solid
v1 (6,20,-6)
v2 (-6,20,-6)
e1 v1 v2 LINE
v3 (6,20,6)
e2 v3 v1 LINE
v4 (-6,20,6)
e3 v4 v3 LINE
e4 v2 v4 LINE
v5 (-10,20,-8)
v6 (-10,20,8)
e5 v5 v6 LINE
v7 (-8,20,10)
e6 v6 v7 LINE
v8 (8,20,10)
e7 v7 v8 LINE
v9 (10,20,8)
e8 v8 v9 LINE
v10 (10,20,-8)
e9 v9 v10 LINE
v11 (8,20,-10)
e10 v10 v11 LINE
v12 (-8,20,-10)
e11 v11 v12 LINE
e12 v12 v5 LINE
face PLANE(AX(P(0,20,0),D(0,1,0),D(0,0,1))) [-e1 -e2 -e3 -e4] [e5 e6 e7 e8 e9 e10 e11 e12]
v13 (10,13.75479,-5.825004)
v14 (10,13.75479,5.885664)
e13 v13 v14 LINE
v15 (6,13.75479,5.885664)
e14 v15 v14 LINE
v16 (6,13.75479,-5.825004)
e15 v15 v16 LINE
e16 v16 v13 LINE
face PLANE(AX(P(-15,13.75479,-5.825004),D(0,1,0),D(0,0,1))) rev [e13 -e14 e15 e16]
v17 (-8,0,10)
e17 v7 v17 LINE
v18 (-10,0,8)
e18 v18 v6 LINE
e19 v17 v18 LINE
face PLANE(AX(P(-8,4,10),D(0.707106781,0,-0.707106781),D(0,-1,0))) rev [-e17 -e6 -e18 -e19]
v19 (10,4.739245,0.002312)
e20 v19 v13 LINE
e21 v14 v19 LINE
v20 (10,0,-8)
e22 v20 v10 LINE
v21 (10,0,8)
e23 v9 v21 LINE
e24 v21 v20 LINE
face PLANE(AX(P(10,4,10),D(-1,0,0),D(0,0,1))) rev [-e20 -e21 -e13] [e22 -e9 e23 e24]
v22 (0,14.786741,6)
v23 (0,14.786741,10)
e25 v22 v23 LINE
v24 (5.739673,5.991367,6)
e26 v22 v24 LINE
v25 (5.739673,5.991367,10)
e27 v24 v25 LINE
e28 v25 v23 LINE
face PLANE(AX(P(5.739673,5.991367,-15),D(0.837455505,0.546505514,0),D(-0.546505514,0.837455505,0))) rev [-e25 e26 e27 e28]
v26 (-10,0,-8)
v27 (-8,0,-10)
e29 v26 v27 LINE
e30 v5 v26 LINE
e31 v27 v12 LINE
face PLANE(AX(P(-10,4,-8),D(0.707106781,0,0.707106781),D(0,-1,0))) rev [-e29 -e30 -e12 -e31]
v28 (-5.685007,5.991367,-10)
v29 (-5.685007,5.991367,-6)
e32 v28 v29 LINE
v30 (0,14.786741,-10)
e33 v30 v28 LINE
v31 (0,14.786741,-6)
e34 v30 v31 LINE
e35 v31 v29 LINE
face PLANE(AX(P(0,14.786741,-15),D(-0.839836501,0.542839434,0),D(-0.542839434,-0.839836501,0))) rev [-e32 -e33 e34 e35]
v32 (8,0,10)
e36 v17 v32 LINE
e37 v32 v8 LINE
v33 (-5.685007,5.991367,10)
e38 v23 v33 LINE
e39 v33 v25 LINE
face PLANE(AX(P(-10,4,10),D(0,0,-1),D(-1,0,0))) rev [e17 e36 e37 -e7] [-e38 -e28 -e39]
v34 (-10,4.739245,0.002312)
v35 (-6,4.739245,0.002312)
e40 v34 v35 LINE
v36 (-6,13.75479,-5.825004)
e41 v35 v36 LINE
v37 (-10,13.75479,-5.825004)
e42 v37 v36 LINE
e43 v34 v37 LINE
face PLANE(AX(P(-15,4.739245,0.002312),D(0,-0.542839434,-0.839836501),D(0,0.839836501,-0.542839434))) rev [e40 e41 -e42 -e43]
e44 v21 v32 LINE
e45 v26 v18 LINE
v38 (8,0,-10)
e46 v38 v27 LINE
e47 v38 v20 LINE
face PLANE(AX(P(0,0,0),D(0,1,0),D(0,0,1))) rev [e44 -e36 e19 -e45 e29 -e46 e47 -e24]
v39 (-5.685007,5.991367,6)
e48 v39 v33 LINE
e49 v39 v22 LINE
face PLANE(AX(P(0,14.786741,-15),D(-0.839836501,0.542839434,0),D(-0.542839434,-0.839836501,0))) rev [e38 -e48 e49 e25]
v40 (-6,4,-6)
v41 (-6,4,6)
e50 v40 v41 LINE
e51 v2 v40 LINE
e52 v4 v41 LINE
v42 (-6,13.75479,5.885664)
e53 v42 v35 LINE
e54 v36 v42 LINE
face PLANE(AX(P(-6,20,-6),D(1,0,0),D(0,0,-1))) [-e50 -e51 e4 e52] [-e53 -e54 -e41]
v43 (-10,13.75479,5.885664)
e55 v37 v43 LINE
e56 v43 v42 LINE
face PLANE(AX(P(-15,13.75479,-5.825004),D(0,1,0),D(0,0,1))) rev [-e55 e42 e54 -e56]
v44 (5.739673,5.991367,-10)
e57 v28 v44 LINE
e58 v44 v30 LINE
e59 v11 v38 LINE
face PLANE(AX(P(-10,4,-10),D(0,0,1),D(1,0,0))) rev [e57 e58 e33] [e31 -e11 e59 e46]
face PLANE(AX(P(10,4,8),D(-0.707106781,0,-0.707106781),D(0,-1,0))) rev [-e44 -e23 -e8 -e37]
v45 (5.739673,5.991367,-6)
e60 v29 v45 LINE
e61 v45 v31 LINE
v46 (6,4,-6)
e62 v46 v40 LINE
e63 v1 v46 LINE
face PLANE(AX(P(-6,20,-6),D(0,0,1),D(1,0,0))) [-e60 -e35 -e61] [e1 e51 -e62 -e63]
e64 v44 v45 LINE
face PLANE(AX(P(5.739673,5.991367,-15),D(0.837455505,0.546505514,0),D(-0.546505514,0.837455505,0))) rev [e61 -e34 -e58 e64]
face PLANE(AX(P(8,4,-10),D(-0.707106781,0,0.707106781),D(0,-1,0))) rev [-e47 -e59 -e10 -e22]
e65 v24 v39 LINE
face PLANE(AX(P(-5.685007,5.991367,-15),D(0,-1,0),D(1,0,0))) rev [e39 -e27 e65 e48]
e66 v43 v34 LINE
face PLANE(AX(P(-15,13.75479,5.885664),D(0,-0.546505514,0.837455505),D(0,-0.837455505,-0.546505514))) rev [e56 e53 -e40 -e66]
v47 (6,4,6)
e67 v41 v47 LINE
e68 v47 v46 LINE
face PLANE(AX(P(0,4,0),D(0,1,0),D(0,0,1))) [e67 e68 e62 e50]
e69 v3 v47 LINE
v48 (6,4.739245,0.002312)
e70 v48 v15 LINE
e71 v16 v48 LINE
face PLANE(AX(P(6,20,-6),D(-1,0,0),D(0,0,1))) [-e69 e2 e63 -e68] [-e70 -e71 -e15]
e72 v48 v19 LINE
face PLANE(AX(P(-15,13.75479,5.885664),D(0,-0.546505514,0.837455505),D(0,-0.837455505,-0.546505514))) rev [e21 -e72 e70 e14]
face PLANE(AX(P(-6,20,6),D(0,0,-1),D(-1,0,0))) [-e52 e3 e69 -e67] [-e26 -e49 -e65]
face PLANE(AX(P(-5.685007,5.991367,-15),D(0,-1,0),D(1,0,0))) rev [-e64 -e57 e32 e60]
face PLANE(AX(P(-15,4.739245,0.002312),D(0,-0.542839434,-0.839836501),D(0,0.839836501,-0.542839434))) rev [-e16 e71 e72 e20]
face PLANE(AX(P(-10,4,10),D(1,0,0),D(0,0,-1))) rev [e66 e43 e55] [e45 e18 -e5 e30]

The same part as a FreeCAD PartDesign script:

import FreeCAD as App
import Part
import Sketcher
Q = App.Units.Quantity


def edges_at(feature, points):
    """Names of the edges that pass closest to the given points."""
    edges = feature.Shape.Edges
    near = lambda p: min(range(len(edges)), key=lambda i: edges[i].distToShape(Part.Vertex(*p))[0])
    return sorted({f"Edge{near(p) + 1}" for p in points})

doc = App.newDocument("Part")
body = doc.addObject("PartDesign::Body", "Body")

sketch1 = body.newObject("Sketcher::SketchObject", "Sketch")
sketch1.AttachmentSupport = (doc.getObject("XZ_Plane"), [""])
sketch1.MapMode = "FlatFace"
sketch1.addGeometry([
    Part.LineSegment(App.Vector(-10, -10, 0), App.Vector(-10, 10, 0)),
    Part.LineSegment(App.Vector(-10, 10, 0), App.Vector(10, 10, 0)),
    Part.LineSegment(App.Vector(10, 10, 0), App.Vector(10, -10, 0)),
    Part.LineSegment(App.Vector(10, -10, 0), App.Vector(-10, -10, 0)),
], False)
sketch1.addConstraint([
    Sketcher.Constraint("Coincident", 0, 2, 1, 1),
    Sketcher.Constraint("Coincident", 1, 2, 2, 1),
    Sketcher.Constraint("Coincident", 2, 2, 3, 1),
    Sketcher.Constraint("Coincident", 3, 2, 0, 1),
    Sketcher.Constraint("Vertical", 0),
    Sketcher.Constraint("Horizontal", 1),
    Sketcher.Constraint("Vertical", 2),
    Sketcher.Constraint("Horizontal", 3),
    Sketcher.Constraint("Symmetric", 0, 2, 2, 2, -1, 1),
    Sketcher.Constraint("Equal", 3, 0),
    Sketcher.Constraint("DistanceX", 1, 1, 1, 2, Q("20 mm")),
])
pad1 = body.newObject("PartDesign::Pad", "Pad")
pad1.Profile = sketch1
pad1.Length = 4
pad1.Reversed = True

sketch2 = body.newObject("Sketcher::SketchObject", "Sketch001")
sketch2.AttachmentSupport = (doc.getObject("XZ_Plane"), [""])
sketch2.MapMode = "FlatFace"
sketch2.AttachmentOffset = App.Placement(App.Vector(0, 0, -4), App.Rotation())
sketch2.addGeometry([
    Part.LineSegment(App.Vector(-10, -10, 0), App.Vector(-10, 10, 0)),
    Part.LineSegment(App.Vector(-10, 10, 0), App.Vector(10, 10, 0)),
    Part.LineSegment(App.Vector(10, 10, 0), App.Vector(10, -10, 0)),
    Part.LineSegment(App.Vector(10, -10, 0), App.Vector(-10, -10, 0)),
    Part.LineSegment(App.Vector(6, 6, 0), App.Vector(-6, 6, 0)),
    Part.LineSegment(App.Vector(-6, 6, 0), App.Vector(-6, -6, 0)),
    Part.LineSegment(App.Vector(-6, -6, 0), App.Vector(6, -6, 0)),
    Part.LineSegment(App.Vector(6, -6, 0), App.Vector(6, 6, 0)),
], False)
sketch2.addConstraint([
    Sketcher.Constraint("Coincident", 0, 2, 1, 1),
    Sketcher.Constraint("Coincident", 1, 2, 2, 1),
    Sketcher.Constraint("Coincident", 2, 2, 3, 1),
    Sketcher.Constraint("Coincident", 3, 2, 0, 1),
    Sketcher.Constraint("Coincident", 4, 2, 5, 1),
    Sketcher.Constraint("Coincident", 5, 2, 6, 1),
    Sketcher.Constraint("Coincident", 6, 2, 7, 1),
    Sketcher.Constraint("Coincident", 7, 2, 4, 1),
    Sketcher.Constraint("Vertical", 0),
    Sketcher.Constraint("Horizontal", 1),
    Sketcher.Constraint("Vertical", 2),
    Sketcher.Constraint("Horizontal", 3),
    Sketcher.Constraint("Horizontal", 4),
    Sketcher.Constraint("Vertical", 5),
    Sketcher.Constraint("Horizontal", 6),
    Sketcher.Constraint("Vertical", 7),
    Sketcher.Constraint("Symmetric", 0, 2, 2, 2, -1, 1),
    Sketcher.Constraint("Symmetric", 4, 2, 6, 2, -1, 1),
    Sketcher.Constraint("Equal", 3, 0),
    Sketcher.Constraint("Equal", 6, 5),
    Sketcher.Constraint("DistanceX", 1, 1, 1, 2, Q("20 mm")),
    Sketcher.Constraint("DistanceX", 4, 2, 4, 1, Q("12 mm")),
])
pad2 = body.newObject("PartDesign::Pad", "Pad001")
pad2.Profile = sketch2
pad2.Length = 16
pad2.Reversed = True

sketch3 = body.newObject("Sketcher::SketchObject", "Sketch002")
sketch3.AttachmentSupport = (doc.getObject("XY_Plane"), [""])
sketch3.MapMode = "FlatFace"
sketch3.AttachmentOffset = App.Placement(App.Vector(0, 0, 10), App.Rotation())
sketch3.addGeometry([
    Part.LineSegment(App.Vector(0, 14.786741, 0), App.Vector(-5.685007, 5.991367, 0)),
    Part.LineSegment(App.Vector(-5.685007, 5.991367, 0), App.Vector(5.739673, 5.991367, 0)),
    Part.LineSegment(App.Vector(5.739673, 5.991367, 0), App.Vector(0, 14.786741, 0)),
], False)
sketch3.addConstraint([
    Sketcher.Constraint("Coincident", 0, 2, 1, 1),
    Sketcher.Constraint("Coincident", 1, 2, 2, 1),
    Sketcher.Constraint("Coincident", 2, 2, 0, 1),
    Sketcher.Constraint("Horizontal", 1),
    Sketcher.Constraint("PointOnObject", 2, 2, -2),
    Sketcher.Constraint("DistanceX", 1, 1, 1, 2, Q("11.424679 mm")),
    Sketcher.Constraint("DistanceY", -1, 1, 2, 2, Q("14.786741 mm")),
    Sketcher.Constraint("Distance", 0, Q("10.472722 mm")),
    Sketcher.Constraint("Distance", 2, Q("10.502497 mm")),
])
pocket1 = body.newObject("PartDesign::Pocket", "Pocket")
pocket1.Profile = sketch3
pocket1.Length = 25

sketch4 = body.newObject("Sketcher::SketchObject", "Sketch003")
sketch4.AttachmentSupport = (doc.getObject("YZ_Plane"), [""])
sketch4.MapMode = "FlatFace"
sketch4.AttachmentOffset = App.Placement(App.Vector(0, 0, 10), App.Rotation())
sketch4.addGeometry([
    Part.LineSegment(App.Vector(4.739245, 0.002312, 0), App.Vector(13.75479, -5.825004, 0)),
    Part.LineSegment(App.Vector(13.75479, -5.825004, 0), App.Vector(13.75479, 5.885664, 0)),
    Part.LineSegment(App.Vector(13.75479, 5.885664, 0), App.Vector(4.739245, 0.002312, 0)),
], False)
sketch4.addConstraint([
    Sketcher.Constraint("Coincident", 0, 2, 1, 1),
    Sketcher.Constraint("Coincident", 1, 2, 2, 1),
    Sketcher.Constraint("Coincident", 2, 2, 0, 1),
    Sketcher.Constraint("Vertical", 1),
    Sketcher.Constraint("Distance", 2, Q("10.765402 mm")),
    Sketcher.Constraint("DistanceY", 1, 1, 1, 2, Q("11.710668 mm")),
    Sketcher.Constraint("Distance", 0, Q("10.734881 mm")),
    Sketcher.Constraint("DistanceX", -1, 1, 0, 2, Q("13.75479 mm")),
    Sketcher.Constraint("DistanceY", 0, 2, -1, 1, Q("5.825004 mm")),
])
pocket2 = body.newObject("PartDesign::Pocket", "Pocket001")
pocket2.Profile = sketch4
pocket2.Length = 25
doc.recompute()

chamfer = body.newObject("PartDesign::Chamfer", "Chamfer")
chamfer.Base = (pocket2, edges_at(pocket2, [
    (10, 10, -10),
    (10, 10, 10),
    (-10, 10, 10),
    (-10, 10, -10),
]))
chamfer.Size = 2

doc.recompute()
